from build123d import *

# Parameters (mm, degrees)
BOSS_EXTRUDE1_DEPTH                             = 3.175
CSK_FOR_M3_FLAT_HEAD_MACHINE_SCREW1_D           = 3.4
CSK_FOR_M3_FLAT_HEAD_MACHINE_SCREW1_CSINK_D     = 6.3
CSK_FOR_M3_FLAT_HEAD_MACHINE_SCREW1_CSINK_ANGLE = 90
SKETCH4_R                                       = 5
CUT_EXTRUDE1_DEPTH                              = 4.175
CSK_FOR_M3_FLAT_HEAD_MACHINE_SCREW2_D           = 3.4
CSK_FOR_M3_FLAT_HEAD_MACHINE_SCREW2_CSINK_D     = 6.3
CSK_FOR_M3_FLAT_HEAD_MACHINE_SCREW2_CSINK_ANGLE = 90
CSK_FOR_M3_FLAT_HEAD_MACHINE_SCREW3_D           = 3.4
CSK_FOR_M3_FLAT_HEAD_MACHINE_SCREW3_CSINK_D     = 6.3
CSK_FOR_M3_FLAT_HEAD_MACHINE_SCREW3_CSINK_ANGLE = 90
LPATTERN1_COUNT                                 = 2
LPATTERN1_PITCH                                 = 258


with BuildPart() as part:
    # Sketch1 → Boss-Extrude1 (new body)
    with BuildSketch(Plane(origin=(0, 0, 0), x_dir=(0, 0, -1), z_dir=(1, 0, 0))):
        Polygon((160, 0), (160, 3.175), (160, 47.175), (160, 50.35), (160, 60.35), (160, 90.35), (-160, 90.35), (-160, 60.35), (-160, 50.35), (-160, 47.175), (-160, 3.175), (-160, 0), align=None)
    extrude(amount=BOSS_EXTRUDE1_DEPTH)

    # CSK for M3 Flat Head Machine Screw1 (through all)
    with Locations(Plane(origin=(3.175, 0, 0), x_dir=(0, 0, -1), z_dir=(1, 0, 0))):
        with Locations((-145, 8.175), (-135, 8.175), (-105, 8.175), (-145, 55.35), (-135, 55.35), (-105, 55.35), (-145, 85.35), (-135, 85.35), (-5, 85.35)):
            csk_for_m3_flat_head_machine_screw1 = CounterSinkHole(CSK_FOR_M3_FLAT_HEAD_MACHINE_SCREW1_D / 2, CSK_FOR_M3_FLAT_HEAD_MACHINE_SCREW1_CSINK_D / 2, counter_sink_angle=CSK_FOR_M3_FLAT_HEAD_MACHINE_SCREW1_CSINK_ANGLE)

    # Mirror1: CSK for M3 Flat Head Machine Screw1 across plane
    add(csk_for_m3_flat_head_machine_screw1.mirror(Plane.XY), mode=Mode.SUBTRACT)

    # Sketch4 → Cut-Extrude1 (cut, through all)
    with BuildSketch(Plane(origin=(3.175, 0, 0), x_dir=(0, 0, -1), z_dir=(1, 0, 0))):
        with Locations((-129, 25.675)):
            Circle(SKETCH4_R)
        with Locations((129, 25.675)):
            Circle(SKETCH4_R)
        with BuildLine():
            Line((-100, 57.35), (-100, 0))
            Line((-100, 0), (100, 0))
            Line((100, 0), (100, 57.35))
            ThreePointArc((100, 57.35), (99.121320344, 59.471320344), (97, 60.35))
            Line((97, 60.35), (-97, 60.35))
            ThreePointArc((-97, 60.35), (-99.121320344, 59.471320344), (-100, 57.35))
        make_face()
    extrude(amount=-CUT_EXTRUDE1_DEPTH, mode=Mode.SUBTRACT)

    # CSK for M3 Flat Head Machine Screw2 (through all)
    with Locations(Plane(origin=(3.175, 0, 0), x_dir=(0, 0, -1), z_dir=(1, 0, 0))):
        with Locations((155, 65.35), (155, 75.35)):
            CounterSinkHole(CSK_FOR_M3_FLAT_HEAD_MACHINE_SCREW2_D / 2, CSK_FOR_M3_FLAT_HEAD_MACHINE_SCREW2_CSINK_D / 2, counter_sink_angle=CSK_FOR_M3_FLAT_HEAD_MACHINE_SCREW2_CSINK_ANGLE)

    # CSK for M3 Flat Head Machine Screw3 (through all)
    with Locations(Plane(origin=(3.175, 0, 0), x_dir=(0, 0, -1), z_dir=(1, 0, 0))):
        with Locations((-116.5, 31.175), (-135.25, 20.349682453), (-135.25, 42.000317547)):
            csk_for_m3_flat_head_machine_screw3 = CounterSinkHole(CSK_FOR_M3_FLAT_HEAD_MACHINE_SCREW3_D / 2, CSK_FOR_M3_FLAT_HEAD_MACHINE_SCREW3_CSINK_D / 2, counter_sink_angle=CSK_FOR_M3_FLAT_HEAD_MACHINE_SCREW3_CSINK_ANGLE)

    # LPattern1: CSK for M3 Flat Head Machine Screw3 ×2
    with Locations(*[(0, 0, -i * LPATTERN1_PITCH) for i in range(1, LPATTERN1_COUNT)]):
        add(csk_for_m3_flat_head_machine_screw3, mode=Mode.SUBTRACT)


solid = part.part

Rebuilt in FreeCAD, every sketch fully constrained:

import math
import FreeCAD as App
import Part
import Sketcher

V = App.Vector

doc = App.newDocument("Part")
body = doc.addObject("PartDesign::Body", "Body")

sketch1 = body.newObject("Sketcher::SketchObject", "Sketch")
sketch1.AttachmentSupport = (doc.getObject("YZ_Plane"), [""])
sketch1.MapMode = "FlatFace"
sketch1.addGeometry(Part.LineSegment(V(0, -160, 0), V(90.35, -160, 0)), False)
sketch1.addGeometry(Part.LineSegment(V(90.35, -160, 0), V(90.35, 160, 0)), False)
sketch1.addGeometry(Part.LineSegment(V(90.35, 160, 0), V(0, 160, 0)), False)
sketch1.addGeometry(Part.LineSegment(V(0, 160, 0), V(0, -160, 0)), False)
sketch1.addConstraint(Sketcher.Constraint("Coincident", 0, 2, 1, 1))
sketch1.addConstraint(Sketcher.Constraint("Coincident", 1, 2, 2, 1))
sketch1.addConstraint(Sketcher.Constraint("Coincident", 2, 2, 3, 1))
sketch1.addConstraint(Sketcher.Constraint("Coincident", 3, 2, 0, 1))
sketch1.addConstraint(Sketcher.Constraint("Horizontal", 0))
sketch1.addConstraint(Sketcher.Constraint("Vertical", 1))
sketch1.addConstraint(Sketcher.Constraint("Horizontal", 2))
sketch1.addConstraint(Sketcher.Constraint("Vertical", 3))
sketch1.addConstraint(Sketcher.Constraint("Symmetric", 2, 2, 3, 2, -1, 1))
sketch1.addConstraint(Sketcher.Constraint("DistanceY", 1, 1, 1, 2, 320.0))
sketch1.addConstraint(Sketcher.Constraint("DistanceX", 0, 1, 0, 2, 90.35))
pad1 = body.newObject("PartDesign::Pad", "Pad")
pad1.Profile = sketch1
pad1.Length = 3.175

sketch2 = body.newObject("Sketcher::SketchObject", "Sketch001")
sketch2.AttachmentSupport = (doc.getObject("YZ_Plane"), [""])
sketch2.MapMode = "FlatFace"
sketch2.AttachmentOffset = App.Placement(V(0, 0, 3.175), App.Rotation())
sketch2.addGeometry(Part.Circle(V(8.175, 145, 0), V(0, 0, 1), 1.7), False)
sketch2.addGeometry(Part.Circle(V(8.175, 135, 0), V(0, 0, 1), 1.7), False)
sketch2.addGeometry(Part.Circle(V(8.175, 105, 0), V(0, 0, 1), 1.7), False)
sketch2.addGeometry(Part.Circle(V(55.35, 145, 0), V(0, 0, 1), 1.7), False)
sketch2.addGeometry(Part.Circle(V(55.35, 135, 0), V(0, 0, 1), 1.7), False)
sketch2.addGeometry(Part.Circle(V(55.35, 105, 0), V(0, 0, 1), 1.7), False)
sketch2.addGeometry(Part.Circle(V(85.35, 145, 0), V(0, 0, 1), 1.7), False)
sketch2.addGeometry(Part.Circle(V(85.35, 135, 0), V(0, 0, 1), 1.7), False)
sketch2.addGeometry(Part.Circle(V(85.35, 5, 0), V(0, 0, 1), 1.7), False)
sketch2.addConstraint(Sketcher.Constraint("Equal", 0, 1))
sketch2.addConstraint(Sketcher.Constraint("Equal", 1, 2))
sketch2.addConstraint(Sketcher.Constraint("Equal", 2, 3))
sketch2.addConstraint(Sketcher.Constraint("Equal", 3, 4))
sketch2.addConstraint(Sketcher.Constraint("Equal", 4, 5))
sketch2.addConstraint(Sketcher.Constraint("Equal", 5, 6))
sketch2.addConstraint(Sketcher.Constraint("Equal", 6, 7))
sketch2.addConstraint(Sketcher.Constraint("Equal", 7, 8))
sketch2.addConstraint(Sketcher.Constraint("Horizontal", 0, 3, 3, 3))
sketch2.addConstraint(Sketcher.Constraint("Horizontal", 1, 3, 4, 3))
sketch2.addConstraint(Sketcher.Constraint("Horizontal", 2, 3, 5, 3))
sketch2.addConstraint(Sketcher.Constraint("Horizontal", 3, 3, 6, 3))
sketch2.addConstraint(Sketcher.Constraint("Horizontal", 4, 3, 7, 3))
sketch2.addConstraint(Sketcher.Constraint("Vertical", 0, 3, 1, 3))
sketch2.addConstraint(Sketcher.Constraint("Vertical", 1, 3, 2, 3))
sketch2.addConstraint(Sketcher.Constraint("Vertical", 3, 3, 4, 3))
sketch2.addConstraint(Sketcher.Constraint("Vertical", 4, 3, 5, 3))
sketch2.addConstraint(Sketcher.Constraint("Vertical", 6, 3, 7, 3))
sketch2.addConstraint(Sketcher.Constraint("Vertical", 7, 3, 8, 3))
sketch2.addConstraint(Sketcher.Constraint("Diameter", 0, 3.4))
sketch2.addConstraint(Sketcher.Constraint("DistanceY", -1, 1, 0, 3, 145.0))
sketch2.addConstraint(Sketcher.Constraint("DistanceY", -1, 1, 1, 3, 135.0))
sketch2.addConstraint(Sketcher.Constraint("DistanceY", -1, 1, 2, 3, 105.0))
sketch2.addConstraint(Sketcher.Constraint("DistanceY", -1, 1, 8, 3, 5.0))
sketch2.addConstraint(Sketcher.Constraint("DistanceX", 3, 3, 6, 3, 30.0))
sketch2.addConstraint(Sketcher.Constraint("DistanceX", -1, 1, 3, 3, 55.35))
sketch2.addConstraint(Sketcher.Constraint("DistanceX", -1, 1, 0, 3, 8.175))
doc.recompute()
hole = body.newObject("PartDesign::Hole", "Hole")
hole.Profile = sketch2
hole.ThreadType = "None"
hole.Diameter = 3.4
hole.DepthType = "ThroughAll"
hole.HoleCutType = "Countersink"
hole.HoleCutDiameter = 6.3
hole.HoleCutCountersinkAngle = 90
doc.recompute()

mirrored = body.newObject("PartDesign::Mirrored", "Mirrored")
mirrored.Originals = [hole]
mirrored.MirrorPlane = (doc.getObject("XY_Plane"), [""])
body.Tip = mirrored

sketch3 = body.newObject("Sketcher::SketchObject", "Sketch002")
sketch3.AttachmentSupport = (doc.getObject("YZ_Plane"), [""])
sketch3.MapMode = "FlatFace"
sketch3.AttachmentOffset = App.Placement(V(0, 0, 3.175), App.Rotation())
sketch3.addGeometry(Part.Circle(V(25.675, 129, 0), V(0, 0, 1), 5), False)
sketch3.addGeometry(Part.Circle(V(25.675, -129, 0), V(0, 0, 1), 5), False)
sketch3.addGeometry(Part.LineSegment(V(57.35, 100, 0), V(0, 100, 0)), False)
sketch3.addGeometry(Part.LineSegment(V(0, 100, 0), V(0, -100, 0)), False)
sketch3.addGeometry(Part.LineSegment(V(0, -100, 0), V(57.35, -100, 0)), False)
sketch3.addGeometry(Part.ArcOfCircle(Part.Circle(V(57.35, -97, 0), V(0, 0, 1), 3), math.radians(-90), math.radians(0)), False)
sketch3.addGeometry(Part.LineSegment(V(60.35, -97, 0), V(60.35, 97, 0)), False)
sketch3.addGeometry(Part.ArcOfCircle(Part.Circle(V(57.35, 97, 0), V(0, 0, 1), 3), math.radians(0), math.radians(90)), False)
sketch3.addConstraint(Sketcher.Constraint("Coincident", 2, 2, 3, 1))
sketch3.addConstraint(Sketcher.Constraint("Coincident", 3, 2, 4, 1))
sketch3.addConstraint(Sketcher.Constraint("Tangent", 4, 2, 5, 1))
sketch3.addConstraint(Sketcher.Constraint("Tangent", 5, 2, 6, 1))
sketch3.addConstraint(Sketcher.Constraint("Tangent", 6, 2, 7, 1))
sketch3.addConstraint(Sketcher.Constraint("Tangent", 7, 2, 2, 1))
sketch3.addConstraint(Sketcher.Constraint("Horizontal", 2))
sketch3.addConstraint(Sketcher.Constraint("Vertical", 3))
sketch3.addConstraint(Sketcher.Constraint("Horizontal", 4))
sketch3.addConstraint(Sketcher.Constraint("Vertical", 6))
sketch3.addConstraint(Sketcher.Constraint("Equal", 0, 1))
sketch3.addConstraint(Sketcher.Constraint("Equal", 5, 7))
sketch3.addConstraint(Sketcher.Constraint("Symmetric", 2, 2, 3, 2, -1, 1))
sketch3.addConstraint(Sketcher.Constraint("Symmetric", 0, 3, 1, 3, -1))
sketch3.addConstraint(Sketcher.Constraint("Diameter", 0, 10.0))
sketch3.addConstraint(Sketcher.Constraint("Radius", 5, 3.0))
sketch3.addConstraint(Sketcher.Constraint("DistanceY", 3, 2, 3, 1, 200.0))
sketch3.addConstraint(Sketcher.Constraint("DistanceY", -1, 1, 0, 3, 129.0))
sketch3.addConstraint(Sketcher.Constraint("DistanceX", 2, 2, 2, 1, 57.35))
sketch3.addConstraint(Sketcher.Constraint("DistanceX", -1, 1, 0, 3, 25.675))
pocket1 = body.newObject("PartDesign::Pocket", "Pocket")
pocket1.Profile = sketch3
pocket1.Type = "ThroughAll"

sketch4 = body.newObject("Sketcher::SketchObject", "Sketch003")
sketch4.AttachmentSupport = (doc.getObject("YZ_Plane"), [""])
sketch4.MapMode = "FlatFace"
sketch4.AttachmentOffset = App.Placement(V(0, 0, 3.175), App.Rotation())
sketch4.addGeometry(Part.Circle(V(65.35, -155, 0), V(0, 0, 1), 1.7), False)
sketch4.addGeometry(Part.Circle(V(75.35, -155, 0), V(0, 0, 1), 1.7), False)
sketch4.addConstraint(Sketcher.Constraint("Equal", 0, 1))
sketch4.addConstraint(Sketcher.Constraint("Horizontal", 0, 3, 1, 3))
sketch4.addConstraint(Sketcher.Constraint("Diameter", 0, 3.4))
sketch4.addConstraint(Sketcher.Constraint("DistanceY", 0, 3, -1, 1, 155.0))
sketch4.addConstraint(Sketcher.Constraint("DistanceX", 0, 3, 1, 3, 10.0))
sketch4.addConstraint(Sketcher.Constraint("DistanceX", -1, 1, 0, 3, 65.35))
doc.recompute()
hole2 = body.newObject("PartDesign::Hole", "Hole001")
hole2.Profile = sketch4
hole2.ThreadType = "None"
hole2.Diameter = 3.4
hole2.DepthType = "ThroughAll"
hole2.HoleCutType = "Countersink"
hole2.HoleCutDiameter = 6.3
hole2.HoleCutCountersinkAngle = 90

sketch5 = body.newObject("Sketcher::SketchObject", "Sketch004")
sketch5.AttachmentSupport = (doc.getObject("YZ_Plane"), [""])
sketch5.MapMode = "FlatFace"
sketch5.AttachmentOffset = App.Placement(V(0, 0, 3.175), App.Rotation())
sketch5.addGeometry(Part.Circle(V(31.175, 116.5, 0), V(0, 0, 1), 1.7), False)
sketch5.addGeometry(Part.Circle(V(20.349682, 135.25, 0), V(0, 0, 1), 1.7), False)
sketch5.addGeometry(Part.Circle(V(42.000318, 135.25, 0), V(0, 0, 1), 1.7), False)
sketch5.addConstraint(Sketcher.Constraint("Equal", 0, 1))
sketch5.addConstraint(Sketcher.Constraint("Equal", 1, 2))
sketch5.addConstraint(Sketcher.Constraint("Horizontal", 1, 3, 2, 3))
sketch5.addConstraint(Sketcher.Constraint("Diameter", 0, 3.4))
sketch5.addConstraint(Sketcher.Constraint("DistanceY", -1, 1, 0, 3, 116.5))
sketch5.addConstraint(Sketcher.Constraint("DistanceY", -1, 1, 1, 3, 135.25))
sketch5.addConstraint(Sketcher.Constraint("DistanceX", -1, 1, 0, 3, 31.175))
sketch5.addConstraint(Sketcher.Constraint("DistanceX", -1, 1, 1, 3, 20.349682))
sketch5.addConstraint(Sketcher.Constraint("DistanceX", -1, 1, 2, 3, 42.000318))
doc.recompute()
hole3 = body.newObject("PartDesign::Hole", "Hole002")
hole3.Profile = sketch5
hole3.ThreadType = "None"
hole3.Diameter = 3.4
hole3.DepthType = "ThroughAll"
hole3.HoleCutType = "Countersink"
hole3.HoleCutDiameter = 6.3
hole3.HoleCutCountersinkAngle = 90
doc.recompute()

linearpattern = body.newObject("PartDesign::LinearPattern", "LinearPattern")
linearpattern.Originals = [hole3]
linearpattern.Direction = (doc.getObject("Z_Axis"), [""])
linearpattern.Mode = "offset"
linearpattern.Offset = 258
linearpattern.Occurrences = 2
linearpattern.Reversed = True
body.Tip = linearpattern

doc.recompute()
